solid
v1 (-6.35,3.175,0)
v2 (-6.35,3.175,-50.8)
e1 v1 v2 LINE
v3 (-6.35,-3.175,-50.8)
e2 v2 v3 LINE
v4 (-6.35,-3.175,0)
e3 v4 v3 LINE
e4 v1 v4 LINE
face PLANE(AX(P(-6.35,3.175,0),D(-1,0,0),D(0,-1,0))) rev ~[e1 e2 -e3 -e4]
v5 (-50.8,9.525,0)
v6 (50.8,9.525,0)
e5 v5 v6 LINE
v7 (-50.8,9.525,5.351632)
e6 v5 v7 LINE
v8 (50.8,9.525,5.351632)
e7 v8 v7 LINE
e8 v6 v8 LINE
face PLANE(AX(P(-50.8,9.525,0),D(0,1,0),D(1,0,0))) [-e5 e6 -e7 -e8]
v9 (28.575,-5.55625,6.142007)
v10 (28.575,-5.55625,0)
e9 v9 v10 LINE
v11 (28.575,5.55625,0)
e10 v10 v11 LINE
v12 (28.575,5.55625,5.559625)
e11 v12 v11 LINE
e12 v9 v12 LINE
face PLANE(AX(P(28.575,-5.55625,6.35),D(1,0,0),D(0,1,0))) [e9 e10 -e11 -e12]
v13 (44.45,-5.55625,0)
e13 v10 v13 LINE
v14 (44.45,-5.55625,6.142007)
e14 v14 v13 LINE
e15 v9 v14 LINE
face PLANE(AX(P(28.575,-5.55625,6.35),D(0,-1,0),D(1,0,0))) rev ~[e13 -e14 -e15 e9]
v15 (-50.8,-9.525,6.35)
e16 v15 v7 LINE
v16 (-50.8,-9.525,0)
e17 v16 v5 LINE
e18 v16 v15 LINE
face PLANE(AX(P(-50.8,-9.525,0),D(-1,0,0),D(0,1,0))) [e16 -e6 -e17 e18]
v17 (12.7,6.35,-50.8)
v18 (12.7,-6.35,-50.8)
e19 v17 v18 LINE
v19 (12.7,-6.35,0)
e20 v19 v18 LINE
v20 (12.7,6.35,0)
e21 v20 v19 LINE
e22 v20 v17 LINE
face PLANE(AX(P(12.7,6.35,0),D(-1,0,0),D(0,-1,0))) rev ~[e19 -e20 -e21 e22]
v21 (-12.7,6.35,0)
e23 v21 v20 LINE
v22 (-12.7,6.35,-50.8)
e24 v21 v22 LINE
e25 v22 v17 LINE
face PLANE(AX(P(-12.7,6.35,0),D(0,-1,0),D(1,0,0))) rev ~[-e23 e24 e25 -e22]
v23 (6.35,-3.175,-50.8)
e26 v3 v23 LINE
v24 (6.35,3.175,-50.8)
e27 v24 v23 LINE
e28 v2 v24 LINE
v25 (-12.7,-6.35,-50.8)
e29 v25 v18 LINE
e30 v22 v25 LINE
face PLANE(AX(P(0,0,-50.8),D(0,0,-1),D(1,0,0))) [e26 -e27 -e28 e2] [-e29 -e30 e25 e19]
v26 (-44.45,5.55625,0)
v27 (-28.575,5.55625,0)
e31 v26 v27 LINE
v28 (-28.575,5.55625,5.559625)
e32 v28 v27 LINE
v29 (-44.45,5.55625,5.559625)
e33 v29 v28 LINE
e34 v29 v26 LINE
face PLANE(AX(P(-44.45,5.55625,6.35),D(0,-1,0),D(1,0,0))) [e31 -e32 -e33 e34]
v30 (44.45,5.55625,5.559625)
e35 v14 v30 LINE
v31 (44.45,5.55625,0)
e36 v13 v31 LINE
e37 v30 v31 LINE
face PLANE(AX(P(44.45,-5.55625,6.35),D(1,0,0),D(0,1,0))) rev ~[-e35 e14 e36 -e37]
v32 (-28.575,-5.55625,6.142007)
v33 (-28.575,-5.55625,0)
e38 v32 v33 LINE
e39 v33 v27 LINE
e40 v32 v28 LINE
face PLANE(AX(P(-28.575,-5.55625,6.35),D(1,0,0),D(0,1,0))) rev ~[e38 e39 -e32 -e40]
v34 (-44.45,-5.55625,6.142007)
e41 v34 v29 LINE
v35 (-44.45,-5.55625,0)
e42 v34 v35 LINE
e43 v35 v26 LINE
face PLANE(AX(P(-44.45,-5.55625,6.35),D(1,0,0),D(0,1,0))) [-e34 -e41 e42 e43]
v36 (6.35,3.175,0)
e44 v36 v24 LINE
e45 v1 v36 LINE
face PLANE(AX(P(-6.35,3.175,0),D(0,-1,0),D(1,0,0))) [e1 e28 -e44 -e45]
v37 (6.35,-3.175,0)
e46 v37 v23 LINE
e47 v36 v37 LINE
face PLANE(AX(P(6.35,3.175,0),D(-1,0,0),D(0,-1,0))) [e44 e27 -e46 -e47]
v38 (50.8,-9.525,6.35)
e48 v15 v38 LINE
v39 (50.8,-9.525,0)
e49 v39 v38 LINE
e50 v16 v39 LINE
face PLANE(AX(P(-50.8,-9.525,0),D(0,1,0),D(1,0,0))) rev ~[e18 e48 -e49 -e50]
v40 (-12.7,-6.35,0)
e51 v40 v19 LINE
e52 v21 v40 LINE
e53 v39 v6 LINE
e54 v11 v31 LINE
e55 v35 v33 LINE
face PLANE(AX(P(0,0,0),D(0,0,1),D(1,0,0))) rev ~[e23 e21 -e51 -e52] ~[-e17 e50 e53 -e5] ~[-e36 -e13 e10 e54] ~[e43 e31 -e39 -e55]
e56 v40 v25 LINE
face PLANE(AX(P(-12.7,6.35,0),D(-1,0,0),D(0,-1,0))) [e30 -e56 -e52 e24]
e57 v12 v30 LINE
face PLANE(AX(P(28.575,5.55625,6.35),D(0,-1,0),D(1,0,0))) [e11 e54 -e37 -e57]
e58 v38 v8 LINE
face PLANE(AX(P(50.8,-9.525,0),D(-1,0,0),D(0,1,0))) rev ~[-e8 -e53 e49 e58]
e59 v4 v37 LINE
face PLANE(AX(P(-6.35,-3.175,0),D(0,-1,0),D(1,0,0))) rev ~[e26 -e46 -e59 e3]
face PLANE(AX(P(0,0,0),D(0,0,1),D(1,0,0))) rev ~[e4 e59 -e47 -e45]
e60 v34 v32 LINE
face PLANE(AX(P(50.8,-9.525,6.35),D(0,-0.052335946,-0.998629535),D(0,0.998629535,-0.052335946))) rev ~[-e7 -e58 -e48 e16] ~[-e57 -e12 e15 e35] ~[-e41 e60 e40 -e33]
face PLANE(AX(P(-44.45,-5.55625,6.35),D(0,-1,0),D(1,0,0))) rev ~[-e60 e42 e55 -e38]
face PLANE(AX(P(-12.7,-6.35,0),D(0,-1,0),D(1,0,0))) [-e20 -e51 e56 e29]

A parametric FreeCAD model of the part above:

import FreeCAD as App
import Part
import Sketcher

V = App.Vector
Q = App.Units.Quantity

doc = App.newDocument("Part")
body = doc.addObject("PartDesign::Body", "Body")

# Sketch on XY plane
sketch1 = doc.addObject("Sketcher::SketchObject", "Sketch")
body.addObject(sketch1)
sketch1.AttachmentSupport = (doc.XY_Plane, [""])
sketch1.MapMode = "FlatFace"
sketch1.addGeometry(Part.LineSegment(V(-50.8, 9.525, 0), V(-50.8, -9.525, 0)), False)
sketch1.addGeometry(Part.LineSegment(V(-50.8, -9.525, 0), V(50.8, -9.525, 0)), False)
sketch1.addGeometry(Part.LineSegment(V(50.8, -9.525, 0), V(50.8, 9.525, 0)), False)
sketch1.addGeometry(Part.LineSegment(V(50.8, 9.525, 0), V(-50.8, 9.525, 0)), False)
sketch1.addConstraint(Sketcher.Constraint("Coincident", 0, 2, 1, 1))
sketch1.addConstraint(Sketcher.Constraint("Coincident", 1, 2, 2, 1))
sketch1.addConstraint(Sketcher.Constraint("Coincident", 2, 2, 3, 1))
sketch1.addConstraint(Sketcher.Constraint("Coincident", 3, 2, 0, 1))
sketch1.addConstraint(Sketcher.Constraint("Vertical", 0))
sketch1.addConstraint(Sketcher.Constraint("Horizontal", 1))
sketch1.addConstraint(Sketcher.Constraint("Vertical", 2))
sketch1.addConstraint(Sketcher.Constraint("Horizontal", 3))
sketch1.addConstraint(Sketcher.Constraint("Symmetric", 0, 2, 2, 2, -1, 1))
sketch1.addConstraint(Sketcher.Constraint("DistanceX", 1, 1, 1, 2, Q("4 in")))
sketch1.addConstraint(Sketcher.Constraint("DistanceY", 0, 2, 0, 1, Q("0.75 in")))
pad1 = doc.addObject("PartDesign::Pad", "Pad")
body.addObject(pad1)
pad1.Profile = sketch1
pad1.Length = Q("0.25 in")

# Sketch on XY plane
sketch2 = doc.addObject("Sketcher::SketchObject", "Sketch001")
body.addObject(sketch2)
sketch2.AttachmentSupport = (doc.XY_Plane, [""])
sketch2.MapMode = "FlatFace"
sketch2.AttachmentOffset = App.Placement(V(0, 0, 0.25 * 25.4), App.Rotation())
sketch2.addGeometry(Part.LineSegment(V(-44.45, 5.55625, 0), V(-44.45, -5.55625, 0)), False)
sketch2.addGeometry(Part.LineSegment(V(-44.45, -5.55625, 0), V(-28.575, -5.55625, 0)), False)
sketch2.addGeometry(Part.LineSegment(V(-28.575, -5.55625, 0), V(-28.575, 5.55625, 0)), False)
sketch2.addGeometry(Part.LineSegment(V(-28.575, 5.55625, 0), V(-44.45, 5.55625, 0)), False)
sketch2.addConstraint(Sketcher.Constraint("Coincident", 0, 2, 1, 1))
sketch2.addConstraint(Sketcher.Constraint("Coincident", 1, 2, 2, 1))
sketch2.addConstraint(Sketcher.Constraint("Coincident", 2, 2, 3, 1))
sketch2.addConstraint(Sketcher.Constraint("Coincident", 3, 2, 0, 1))
sketch2.addConstraint(Sketcher.Constraint("Vertical", 0))
sketch2.addConstraint(Sketcher.Constraint("Horizontal", 1))
sketch2.addConstraint(Sketcher.Constraint("Vertical", 2))
sketch2.addConstraint(Sketcher.Constraint("Horizontal", 3))
sketch2.addConstraint(Sketcher.Constraint("DistanceX", 1, 1, 1, 2, Q("0.625 in")))
sketch2.addConstraint(Sketcher.Constraint("DistanceY", 0, 2, 0, 1, Q("0.4375 in")))
sketch2.addConstraint(Sketcher.Constraint("DistanceX", 0, 2, -1, 1, Q("1.75 in")))
sketch2.addConstraint(Sketcher.Constraint("DistanceY", 0, 2, -1, 1, Q("0.21875 in")))
pocket1 = doc.addObject("PartDesign::Pocket", "Pocket")
body.addObject(pocket1)
pocket1.Profile = sketch2
pocket1.Length = Q("0.25 in")

# Sketch on XY plane
sketch3 = doc.addObject("Sketcher::SketchObject", "Sketch002")
body.addObject(sketch3)
sketch3.AttachmentSupport = (doc.XY_Plane, [""])
sketch3.MapMode = "FlatFace"
sketch3.AttachmentOffset = App.Placement(V(0, 0, 0.25 * 25.4), App.Rotation())
sketch3.addGeometry(Part.LineSegment(V(28.575, 5.55625, 0), V(28.575, -5.55625, 0)), False)
sketch3.addGeometry(Part.LineSegment(V(28.575, -5.55625, 0), V(44.45, -5.55625, 0)), False)
sketch3.addGeometry(Part.LineSegment(V(44.45, -5.55625, 0), V(44.45, 5.55625, 0)), False)
sketch3.addGeometry(Part.LineSegment(V(44.45, 5.55625, 0), V(28.575, 5.55625, 0)), False)
sketch3.addConstraint(Sketcher.Constraint("Coincident", 0, 2, 1, 1))
sketch3.addConstraint(Sketcher.Constraint("Coincident", 1, 2, 2, 1))
sketch3.addConstraint(Sketcher.Constraint("Coincident", 2, 2, 3, 1))
sketch3.addConstraint(Sketcher.Constraint("Coincident", 3, 2, 0, 1))
sketch3.addConstraint(Sketcher.Constraint("Vertical", 0))
sketch3.addConstraint(Sketcher.Constraint("Horizontal", 1))
sketch3.addConstraint(Sketcher.Constraint("Vertical", 2))
sketch3.addConstraint(Sketcher.Constraint("Horizontal", 3))
sketch3.addConstraint(Sketcher.Constraint("DistanceX", 1, 1, 1, 2, Q("0.625 in")))
sketch3.addConstraint(Sketcher.Constraint("DistanceY", 0, 2, 0, 1, Q("0.4375 in")))
sketch3.addConstraint(Sketcher.Constraint("DistanceX", -1, 1, 1, 2, Q("1.75 in")))
sketch3.addConstraint(Sketcher.Constraint("DistanceY", 0, 2, -1, 1, Q("0.21875 in")))
pocket2 = doc.addObject("PartDesign::Pocket", "Pocket001")
body.addObject(pocket2)
pocket2.Profile = sketch3
pocket2.Length = Q("0.25 in")

# Sketch on YZ plane
sketch4 = doc.addObject("Sketcher::SketchObject", "Sketch003")
body.addObject(sketch4)
sketch4.AttachmentSupport = (doc.YZ_Plane, [""])
sketch4.MapMode = "FlatFace"
sketch4.AttachmentOffset = App.Placement(V(0, 0, 2 * 25.4), App.Rotation())
sketch4.addGeometry(Part.LineSegment(V(9.525, 6.35, 0), V(-9.525, 6.35, 0)), False)
sketch4.addGeometry(Part.LineSegment(V(-9.525, 6.35, 0), V(9.525, 5.351632, 0)), False)
sketch4.addGeometry(Part.LineSegment(V(9.525, 5.351632, 0), V(9.525, 6.35, 0)), False)
sketch4.addConstraint(Sketcher.Constraint("Coincident", 0, 2, 1, 1))
sketch4.addConstraint(Sketcher.Constraint("Coincident", 1, 2, 2, 1))
sketch4.addConstraint(Sketcher.Constraint("Coincident", 2, 2, 0, 1))
sketch4.addConstraint(Sketcher.Constraint("Horizontal", 0))
sketch4.addConstraint(Sketcher.Constraint("Vertical", 2))
sketch4.addConstraint(Sketcher.Constraint("Angle", 1, Q("-2.999999 deg")))
sketch4.addConstraint(Sketcher.Constraint("DistanceX", 0, 2, 0, 1, Q("0.75 in")))
sketch4.addConstraint(Sketcher.Constraint("DistanceY", -1, 1, 0, 2, Q("0.25 in")))
sketch4.addConstraint(Sketcher.Constraint("DistanceX", 0, 2, -1, 1, Q("0.375 in")))
pocket3 = doc.addObject("PartDesign::Pocket", "Pocket002")
body.addObject(pocket3)
pocket3.Profile = sketch4
pocket3.Length = Q("4 in")

# Sketch on XY plane
sketch5 = doc.addObject("Sketcher::SketchObject", "Sketch004")
body.addObject(sketch5)
sketch5.AttachmentSupport = (doc.XY_Plane, [""])
sketch5.MapMode = "FlatFace"
sketch5.addGeometry(Part.LineSegment(V(-12.7, -6.35, 0), V(-12.7, 6.35, 0)), False)
sketch5.addGeometry(Part.LineSegment(V(-12.7, 6.35, 0), V(12.7, 6.35, 0)), False)
sketch5.addGeometry(Part.LineSegment(V(12.7, 6.35, 0), V(12.7, -6.35, 0)), False)
sketch5.addGeometry(Part.LineSegment(V(12.7, -6.35, 0), V(-12.7, -6.35, 0)), False)
sketch5.addGeometry(Part.LineSegment(V(6.35, 3.175, 0), V(-6.35, 3.175, 0)), False)
sketch5.addGeometry(Part.LineSegment(V(-6.35, 3.175, 0), V(-6.35, -3.175, 0)), False)
sketch5.addGeometry(Part.LineSegment(V(-6.35, -3.175, 0), V(6.35, -3.175, 0)), False)
sketch5.addGeometry(Part.LineSegment(V(6.35, -3.175, 0), V(6.35, 3.175, 0)), False)
sketch5.addConstraint(Sketcher.Constraint("Coincident", 0, 2, 1, 1))
sketch5.addConstraint(Sketcher.Constraint("Coincident", 1, 2, 2, 1))
sketch5.addConstraint(Sketcher.Constraint("Coincident", 2, 2, 3, 1))
sketch5.addConstraint(Sketcher.Constraint("Coincident", 3, 2, 0, 1))
sketch5.addConstraint(Sketcher.Constraint("Coincident", 4, 2, 5, 1))
sketch5.addConstraint(Sketcher.Constraint("Coincident", 5, 2, 6, 1))
sketch5.addConstraint(Sketcher.Constraint("Coincident", 6, 2, 7, 1))
sketch5.addConstraint(Sketcher.Constraint("Coincident", 7, 2, 4, 1))
sketch5.addConstraint(Sketcher.Constraint("Vertical", 0))
sketch5.addConstraint(Sketcher.Constraint("Horizontal", 1))
sketch5.addConstraint(Sketcher.Constraint("Vertical", 2))
sketch5.addConstraint(Sketcher.Constraint("Horizontal", 3))
sketch5.addConstraint(Sketcher.Constraint("Horizontal", 4))
sketch5.addConstraint(Sketcher.Constraint("Vertical", 5))
sketch5.addConstraint(Sketcher.Constraint("Horizontal", 6))
sketch5.addConstraint(Sketcher.Constraint("Vertical", 7))
sketch5.addConstraint(Sketcher.Constraint("Symmetric", 0, 2, 2, 2, -1, 1))
sketch5.addConstraint(Sketcher.Constraint("Symmetric", 4, 2, 6, 2, -1, 1))
sketch5.addConstraint(Sketcher.Constraint("Equal", 6, 0))
sketch5.addConstraint(Sketcher.Constraint("DistanceX", 1, 1, 1, 2, Q("1 in")))
sketch5.addConstraint(Sketcher.Constraint("DistanceX", 4, 2, 4, 1, Q("0.5 in")))
sketch5.addConstraint(Sketcher.Constraint("DistanceY", 5, 2, 5, 1, Q("0.25 in")))
pad2 = doc.addObject("PartDesign::Pad", "Pad001")
body.addObject(pad2)
pad2.Profile = sketch5
pad2.Length = Q("2 in")
pad2.Reversed = True

doc.recompute()
